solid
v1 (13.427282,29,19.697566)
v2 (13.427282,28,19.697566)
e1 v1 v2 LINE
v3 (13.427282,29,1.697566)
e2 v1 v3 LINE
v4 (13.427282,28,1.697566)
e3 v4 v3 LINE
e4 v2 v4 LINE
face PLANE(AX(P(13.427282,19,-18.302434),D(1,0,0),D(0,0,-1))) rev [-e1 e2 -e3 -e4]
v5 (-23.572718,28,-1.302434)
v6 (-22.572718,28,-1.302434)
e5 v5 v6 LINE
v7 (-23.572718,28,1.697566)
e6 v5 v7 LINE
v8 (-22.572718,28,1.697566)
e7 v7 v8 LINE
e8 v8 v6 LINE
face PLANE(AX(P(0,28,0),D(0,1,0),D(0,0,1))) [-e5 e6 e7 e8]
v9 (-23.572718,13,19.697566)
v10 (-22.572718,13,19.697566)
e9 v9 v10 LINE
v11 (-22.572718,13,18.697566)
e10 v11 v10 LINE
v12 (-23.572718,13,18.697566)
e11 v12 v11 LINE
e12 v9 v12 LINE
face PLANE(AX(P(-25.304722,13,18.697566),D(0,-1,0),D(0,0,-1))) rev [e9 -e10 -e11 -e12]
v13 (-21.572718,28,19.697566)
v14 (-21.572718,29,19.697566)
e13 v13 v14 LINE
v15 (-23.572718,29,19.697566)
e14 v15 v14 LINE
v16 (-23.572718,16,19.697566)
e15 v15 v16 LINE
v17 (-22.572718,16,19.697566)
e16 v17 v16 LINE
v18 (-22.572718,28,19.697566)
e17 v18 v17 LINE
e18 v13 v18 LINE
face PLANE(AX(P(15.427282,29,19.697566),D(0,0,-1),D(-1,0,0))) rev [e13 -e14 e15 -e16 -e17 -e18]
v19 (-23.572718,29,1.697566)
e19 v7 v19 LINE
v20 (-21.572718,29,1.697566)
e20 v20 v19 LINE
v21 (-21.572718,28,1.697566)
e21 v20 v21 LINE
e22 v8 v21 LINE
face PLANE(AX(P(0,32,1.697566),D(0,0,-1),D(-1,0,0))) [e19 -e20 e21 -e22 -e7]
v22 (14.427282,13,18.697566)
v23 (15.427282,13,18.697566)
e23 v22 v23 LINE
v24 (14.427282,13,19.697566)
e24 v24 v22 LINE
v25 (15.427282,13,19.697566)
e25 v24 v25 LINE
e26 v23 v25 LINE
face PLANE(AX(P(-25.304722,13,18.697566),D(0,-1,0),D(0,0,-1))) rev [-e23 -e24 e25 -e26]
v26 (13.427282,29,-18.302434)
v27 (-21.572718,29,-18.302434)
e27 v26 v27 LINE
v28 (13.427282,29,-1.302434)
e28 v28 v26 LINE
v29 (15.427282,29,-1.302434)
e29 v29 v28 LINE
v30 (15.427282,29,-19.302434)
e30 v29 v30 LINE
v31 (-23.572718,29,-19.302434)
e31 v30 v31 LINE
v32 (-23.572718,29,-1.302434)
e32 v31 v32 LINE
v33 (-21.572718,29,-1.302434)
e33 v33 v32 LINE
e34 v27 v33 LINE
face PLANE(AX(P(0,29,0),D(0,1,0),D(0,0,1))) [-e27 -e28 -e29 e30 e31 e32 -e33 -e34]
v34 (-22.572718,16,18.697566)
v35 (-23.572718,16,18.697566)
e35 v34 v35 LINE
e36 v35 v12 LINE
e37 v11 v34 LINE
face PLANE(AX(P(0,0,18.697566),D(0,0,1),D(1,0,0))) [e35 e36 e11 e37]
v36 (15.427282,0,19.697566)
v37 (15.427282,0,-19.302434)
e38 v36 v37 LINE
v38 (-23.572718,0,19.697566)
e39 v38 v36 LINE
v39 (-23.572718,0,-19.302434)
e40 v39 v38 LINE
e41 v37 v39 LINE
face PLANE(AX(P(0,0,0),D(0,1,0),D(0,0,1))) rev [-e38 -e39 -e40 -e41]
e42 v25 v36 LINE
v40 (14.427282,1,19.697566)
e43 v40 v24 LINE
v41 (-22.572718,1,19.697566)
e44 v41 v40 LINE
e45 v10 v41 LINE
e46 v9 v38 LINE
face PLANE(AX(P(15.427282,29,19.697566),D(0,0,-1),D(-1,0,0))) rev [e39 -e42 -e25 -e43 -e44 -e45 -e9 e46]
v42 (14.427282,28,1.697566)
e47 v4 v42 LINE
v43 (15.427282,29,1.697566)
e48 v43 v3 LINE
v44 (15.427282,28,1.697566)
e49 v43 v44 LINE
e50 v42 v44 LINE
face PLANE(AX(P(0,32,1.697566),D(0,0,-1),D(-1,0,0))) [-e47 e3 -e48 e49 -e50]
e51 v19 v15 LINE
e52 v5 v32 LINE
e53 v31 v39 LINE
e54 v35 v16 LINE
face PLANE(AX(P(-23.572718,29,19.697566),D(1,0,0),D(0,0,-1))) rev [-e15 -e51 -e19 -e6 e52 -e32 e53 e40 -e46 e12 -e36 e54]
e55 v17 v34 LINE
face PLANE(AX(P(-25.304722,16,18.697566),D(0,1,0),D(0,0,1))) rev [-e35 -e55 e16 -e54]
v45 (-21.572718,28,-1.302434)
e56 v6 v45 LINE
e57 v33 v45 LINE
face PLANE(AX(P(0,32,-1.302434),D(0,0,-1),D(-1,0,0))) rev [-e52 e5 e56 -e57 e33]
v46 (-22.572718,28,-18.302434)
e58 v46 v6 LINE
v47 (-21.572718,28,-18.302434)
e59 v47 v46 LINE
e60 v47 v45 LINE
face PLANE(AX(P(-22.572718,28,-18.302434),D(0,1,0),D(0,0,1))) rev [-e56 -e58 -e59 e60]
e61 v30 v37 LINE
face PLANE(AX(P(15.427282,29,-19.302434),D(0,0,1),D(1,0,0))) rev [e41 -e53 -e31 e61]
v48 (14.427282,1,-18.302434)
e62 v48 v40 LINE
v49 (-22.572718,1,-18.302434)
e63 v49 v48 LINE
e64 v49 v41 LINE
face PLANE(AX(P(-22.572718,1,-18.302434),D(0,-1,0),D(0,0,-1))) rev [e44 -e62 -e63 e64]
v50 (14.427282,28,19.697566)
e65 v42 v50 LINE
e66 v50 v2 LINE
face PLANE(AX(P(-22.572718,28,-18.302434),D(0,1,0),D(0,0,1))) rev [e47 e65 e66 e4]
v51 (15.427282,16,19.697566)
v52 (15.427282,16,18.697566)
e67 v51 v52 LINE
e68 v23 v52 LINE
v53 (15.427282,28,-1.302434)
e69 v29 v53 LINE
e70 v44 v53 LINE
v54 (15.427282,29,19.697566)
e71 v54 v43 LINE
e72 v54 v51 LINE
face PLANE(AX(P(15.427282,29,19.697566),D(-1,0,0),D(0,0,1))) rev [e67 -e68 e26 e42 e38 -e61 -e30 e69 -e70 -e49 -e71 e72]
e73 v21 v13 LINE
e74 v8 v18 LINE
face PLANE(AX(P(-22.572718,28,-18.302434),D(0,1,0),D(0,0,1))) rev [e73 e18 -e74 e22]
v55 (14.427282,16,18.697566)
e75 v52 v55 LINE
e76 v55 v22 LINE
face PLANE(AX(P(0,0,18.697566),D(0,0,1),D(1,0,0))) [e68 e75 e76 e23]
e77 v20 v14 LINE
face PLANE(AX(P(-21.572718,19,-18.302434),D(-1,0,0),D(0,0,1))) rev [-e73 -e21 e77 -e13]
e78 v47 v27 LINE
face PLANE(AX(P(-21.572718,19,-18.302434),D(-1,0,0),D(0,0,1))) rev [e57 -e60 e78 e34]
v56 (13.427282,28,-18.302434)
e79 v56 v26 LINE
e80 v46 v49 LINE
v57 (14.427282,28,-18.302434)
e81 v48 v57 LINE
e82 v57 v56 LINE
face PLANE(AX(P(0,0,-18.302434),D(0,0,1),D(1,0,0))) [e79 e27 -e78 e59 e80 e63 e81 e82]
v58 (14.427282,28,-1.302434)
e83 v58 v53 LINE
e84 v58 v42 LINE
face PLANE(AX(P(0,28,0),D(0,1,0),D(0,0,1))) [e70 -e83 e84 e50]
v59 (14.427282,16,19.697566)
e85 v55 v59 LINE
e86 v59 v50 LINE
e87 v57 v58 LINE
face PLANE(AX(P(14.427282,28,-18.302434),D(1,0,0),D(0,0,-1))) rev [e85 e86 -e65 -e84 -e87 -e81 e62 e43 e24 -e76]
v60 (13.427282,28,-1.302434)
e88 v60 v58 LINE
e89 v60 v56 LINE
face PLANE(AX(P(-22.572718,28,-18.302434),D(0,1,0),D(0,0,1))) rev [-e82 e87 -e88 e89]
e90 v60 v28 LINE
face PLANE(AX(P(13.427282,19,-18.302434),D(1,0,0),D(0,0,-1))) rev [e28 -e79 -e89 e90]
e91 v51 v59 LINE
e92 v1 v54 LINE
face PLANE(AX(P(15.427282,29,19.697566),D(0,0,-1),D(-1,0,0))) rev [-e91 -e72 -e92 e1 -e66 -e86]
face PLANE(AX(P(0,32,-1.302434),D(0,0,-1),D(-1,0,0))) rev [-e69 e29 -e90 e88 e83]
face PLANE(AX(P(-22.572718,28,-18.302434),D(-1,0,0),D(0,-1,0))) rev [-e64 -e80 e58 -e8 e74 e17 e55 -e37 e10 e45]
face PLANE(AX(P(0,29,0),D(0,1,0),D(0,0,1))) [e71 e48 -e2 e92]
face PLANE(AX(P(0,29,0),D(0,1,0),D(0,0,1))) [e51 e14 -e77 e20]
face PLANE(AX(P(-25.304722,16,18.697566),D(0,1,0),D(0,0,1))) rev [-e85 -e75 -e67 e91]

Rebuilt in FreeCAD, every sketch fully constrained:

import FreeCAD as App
import Part
import Sketcher
Q = App.Units.Quantity

doc = App.newDocument("Part")
params = doc.addObject("Spreadsheet::Sheet", "Params")
for row, (alias, value) in enumerate([
    ("sketch1_width", "39 mm"),
    ("pad1_length", "29 mm"),
    ("sketch2_width", "37 mm"),
    ("sketch2_height", "27 mm"),
    ("pocket1_length", "38 mm"),
    ("sketch3_width", "35 mm"),
    ("pocket2_length", "10 mm"),
    ("sketch4_width", "40 mm"),
    ("sketch4_height", "3 mm"),
    ("pocket3_length", "4 mm"),
    ("sketch5_height", "3 mm"),
    ("pocket4_length", "1 mm"),
], start=1):
    params.set(f"A{row}", alias)
    params.set(f"B{row}", "=" + value)
    params.setAlias(f"B{row}", alias)

body = doc.addObject("PartDesign::Body", "Body")

sketch1 = body.newObject("Sketcher::SketchObject", "Sketch")
sketch1.AttachmentSupport = (doc.getObject("XZ_Plane"), [""])
sketch1.MapMode = "FlatFace"
sketch1.addGeometry([
    Part.LineSegment(App.Vector(-23.572718, -19.302434, 0), App.Vector(-23.572718, 19.697566, 0)),
    Part.LineSegment(App.Vector(-23.572718, 19.697566, 0), App.Vector(15.427282, 19.697566, 0)),
    Part.LineSegment(App.Vector(15.427282, 19.697566, 0), App.Vector(15.427282, -19.302434, 0)),
    Part.LineSegment(App.Vector(15.427282, -19.302434, 0), App.Vector(-23.572718, -19.302434, 0)),
], False)
sketch1.addConstraint([
    Sketcher.Constraint("Coincident", 0, 2, 1, 1),
    Sketcher.Constraint("Coincident", 1, 2, 2, 1),
    Sketcher.Constraint("Coincident", 2, 2, 3, 1),
    Sketcher.Constraint("Coincident", 3, 2, 0, 1),
    Sketcher.Constraint("Vertical", 0),
    Sketcher.Constraint("Horizontal", 1),
    Sketcher.Constraint("Vertical", 2),
    Sketcher.Constraint("Horizontal", 3),
    Sketcher.Constraint("Equal", 3, 0),
    Sketcher.Constraint("DistanceX", 1, 1, 1, 2, Q("39 mm")),
    Sketcher.Constraint("DistanceX", 0, 2, -1, 1, Q("23.572718 mm")),
    Sketcher.Constraint("DistanceY", -1, 1, 0, 2, Q("19.697566 mm")),
])
sketch1.setExpression("Constraints[9]", "Params.sketch1_width")
pad1 = body.newObject("PartDesign::Pad", "Pad")
pad1.Profile = sketch1
pad1.setExpression("Length", "Params.pad1_length")
pad1.Reversed = True

sketch2 = body.newObject("Sketcher::SketchObject", "Sketch001")
sketch2.AttachmentSupport = (doc.getObject("XY_Plane"), [""])
sketch2.MapMode = "FlatFace"
sketch2.AttachmentOffset = App.Placement(App.Vector(0, 0, 19.697566), App.Rotation())
sketch2.addGeometry([
    Part.LineSegment(App.Vector(-22.572718, 28, 0), App.Vector(-22.572718, 1, 0)),
    Part.LineSegment(App.Vector(-22.572718, 1, 0), App.Vector(14.427282, 1, 0)),
    Part.LineSegment(App.Vector(14.427282, 1, 0), App.Vector(14.427282, 28, 0)),
    Part.LineSegment(App.Vector(14.427282, 28, 0), App.Vector(-22.572718, 28, 0)),
], False)
sketch2.addConstraint([
    Sketcher.Constraint("Coincident", 0, 2, 1, 1),
    Sketcher.Constraint("Coincident", 1, 2, 2, 1),
    Sketcher.Constraint("Coincident", 2, 2, 3, 1),
    Sketcher.Constraint("Coincident", 3, 2, 0, 1),
    Sketcher.Constraint("Vertical", 0),
    Sketcher.Constraint("Horizontal", 1),
    Sketcher.Constraint("Vertical", 2),
    Sketcher.Constraint("Horizontal", 3),
    Sketcher.Constraint("DistanceX", 1, 1, 1, 2, Q("37 mm")),
    Sketcher.Constraint("DistanceY", 0, 2, 0, 1, Q("27 mm")),
    Sketcher.Constraint("DistanceY", -1, 1, 0, 2, Q("1 mm")),
    Sketcher.Constraint("DistanceX", 0, 2, -1, 1, Q("22.572718 mm")),
])
sketch2.setExpression("Constraints[8]", "Params.sketch2_width")
sketch2.setExpression("Constraints[9]", "Params.sketch2_height")
pocket1 = body.newObject("PartDesign::Pocket", "Pocket")
pocket1.Profile = sketch2
pocket1.setExpression("Length", "Params.pocket1_length")

sketch3 = body.newObject("Sketcher::SketchObject", "Sketch002")
sketch3.AttachmentSupport = (doc.getObject("XZ_Plane"), [""])
sketch3.MapMode = "FlatFace"
sketch3.AttachmentOffset = App.Placement(App.Vector(0, 0, -29), App.Rotation())
sketch3.addGeometry([
    Part.LineSegment(App.Vector(-21.572718, -18.302434, 0), App.Vector(-21.572718, 20.285626, 0)),
    Part.LineSegment(App.Vector(-21.572718, 20.285626, 0), App.Vector(13.427282, 20.285626, 0)),
    Part.LineSegment(App.Vector(13.427282, 20.285626, 0), App.Vector(13.427282, -18.302434, 0)),
    Part.LineSegment(App.Vector(13.427282, -18.302434, 0), App.Vector(-21.572718, -18.302434, 0)),
], False)
sketch3.addConstraint([
    Sketcher.Constraint("Coincident", 0, 2, 1, 1),
    Sketcher.Constraint("Coincident", 1, 2, 2, 1),
    Sketcher.Constraint("Coincident", 2, 2, 3, 1),
    Sketcher.Constraint("Coincident", 3, 2, 0, 1),
    Sketcher.Constraint("Vertical", 0),
    Sketcher.Constraint("Horizontal", 1),
    Sketcher.Constraint("Vertical", 2),
    Sketcher.Constraint("Horizontal", 3),
    Sketcher.Constraint("DistanceX", 1, 1, 1, 2, Q("35 mm")),
    Sketcher.Constraint("DistanceY", 0, 1, 0, 2, Q("38.588061 mm")),
    Sketcher.Constraint("DistanceX", 0, 2, -1, 1, Q("21.572718 mm")),
    Sketcher.Constraint("DistanceY", -1, 1, 0, 2, Q("20.285626 mm")),
])
sketch3.setExpression("Constraints[8]", "Params.sketch3_width")
pocket2 = body.newObject("PartDesign::Pocket", "Pocket001")
pocket2.Profile = sketch3
pocket2.setExpression("Length", "Params.pocket2_length")
pocket2.Reversed = True

sketch4 = body.newObject("Sketcher::SketchObject", "Sketch003")
sketch4.AttachmentSupport = (doc.getObject("XZ_Plane"), [""])
sketch4.MapMode = "FlatFace"
sketch4.AttachmentOffset = App.Placement(App.Vector(0, 0, -28), App.Rotation())
sketch4.addGeometry([
    Part.LineSegment(App.Vector(-24.288619, -1.302434, 0), App.Vector(-24.288619, 1.697566, 0)),
    Part.LineSegment(App.Vector(-24.288619, 1.697566, 0), App.Vector(15.711381, 1.697566, 0)),
    Part.LineSegment(App.Vector(15.711381, 1.697566, 0), App.Vector(15.711381, -1.302434, 0)),
    Part.LineSegment(App.Vector(15.711381, -1.302434, 0), App.Vector(-24.288619, -1.302434, 0)),
], False)
sketch4.addConstraint([
    Sketcher.Constraint("Coincident", 0, 2, 1, 1),
    Sketcher.Constraint("Coincident", 1, 2, 2, 1),
    Sketcher.Constraint("Coincident", 2, 2, 3, 1),
    Sketcher.Constraint("Coincident", 3, 2, 0, 1),
    Sketcher.Constraint("Vertical", 0),
    Sketcher.Constraint("Horizontal", 1),
    Sketcher.Constraint("Vertical", 2),
    Sketcher.Constraint("Horizontal", 3),
    Sketcher.Constraint("DistanceX", 1, 1, 1, 2, Q("40 mm")),
    Sketcher.Constraint("DistanceY", 0, 1, 0, 2, Q("3 mm")),
    Sketcher.Constraint("DistanceX", 0, 2, -1, 1, Q("24.288619 mm")),
    Sketcher.Constraint("DistanceY", -1, 1, 0, 2, Q("1.697566 mm")),
])
sketch4.setExpression("Constraints[8]", "Params.sketch4_width")
sketch4.setExpression("Constraints[9]", "Params.sketch4_height")
pocket3 = body.newObject("PartDesign::Pocket", "Pocket002")
pocket3.Profile = sketch4
pocket3.setExpression("Length", "Params.pocket3_length")

sketch5 = body.newObject("Sketcher::SketchObject", "Sketch004")
sketch5.AttachmentSupport = (doc.getObject("XY_Plane"), [""])
sketch5.MapMode = "FlatFace"
sketch5.AttachmentOffset = App.Placement(App.Vector(0, 0, 19.697566), App.Rotation())
sketch5.addGeometry([
    Part.LineSegment(App.Vector(-25.304722, 16, 0), App.Vector(-25.304722, 13, 0)),
    Part.LineSegment(App.Vector(-25.304722, 13, 0), App.Vector(16.472741, 13, 0)),
    Part.LineSegment(App.Vector(16.472741, 13, 0), App.Vector(16.472741, 16, 0)),
    Part.LineSegment(App.Vector(16.472741, 16, 0), App.Vector(-25.304722, 16, 0)),
], False)
sketch5.addConstraint([
    Sketcher.Constraint("Coincident", 0, 2, 1, 1),
    Sketcher.Constraint("Coincident", 1, 2, 2, 1),
    Sketcher.Constraint("Coincident", 2, 2, 3, 1),
    Sketcher.Constraint("Coincident", 3, 2, 0, 1),
    Sketcher.Constraint("Vertical", 0),
    Sketcher.Constraint("Horizontal", 1),
    Sketcher.Constraint("Vertical", 2),
    Sketcher.Constraint("Horizontal", 3),
    Sketcher.Constraint("DistanceY", 0, 2, 0, 1, Q("3 mm")),
    Sketcher.Constraint("DistanceY", -1, 1, 0, 2, Q("13 mm")),
    Sketcher.Constraint("DistanceX", 1, 1, 1, 2, Q("41.777463 mm")),
    Sketcher.Constraint("DistanceX", 0, 2, -1, 1, Q("25.304722 mm")),
])
sketch5.setExpression("Constraints[8]", "Params.sketch5_height")
pocket4 = body.newObject("PartDesign::Pocket", "Pocket003")
pocket4.Profile = sketch5
pocket4.setExpression("Length", "Params.pocket4_length")

doc.recompute()
